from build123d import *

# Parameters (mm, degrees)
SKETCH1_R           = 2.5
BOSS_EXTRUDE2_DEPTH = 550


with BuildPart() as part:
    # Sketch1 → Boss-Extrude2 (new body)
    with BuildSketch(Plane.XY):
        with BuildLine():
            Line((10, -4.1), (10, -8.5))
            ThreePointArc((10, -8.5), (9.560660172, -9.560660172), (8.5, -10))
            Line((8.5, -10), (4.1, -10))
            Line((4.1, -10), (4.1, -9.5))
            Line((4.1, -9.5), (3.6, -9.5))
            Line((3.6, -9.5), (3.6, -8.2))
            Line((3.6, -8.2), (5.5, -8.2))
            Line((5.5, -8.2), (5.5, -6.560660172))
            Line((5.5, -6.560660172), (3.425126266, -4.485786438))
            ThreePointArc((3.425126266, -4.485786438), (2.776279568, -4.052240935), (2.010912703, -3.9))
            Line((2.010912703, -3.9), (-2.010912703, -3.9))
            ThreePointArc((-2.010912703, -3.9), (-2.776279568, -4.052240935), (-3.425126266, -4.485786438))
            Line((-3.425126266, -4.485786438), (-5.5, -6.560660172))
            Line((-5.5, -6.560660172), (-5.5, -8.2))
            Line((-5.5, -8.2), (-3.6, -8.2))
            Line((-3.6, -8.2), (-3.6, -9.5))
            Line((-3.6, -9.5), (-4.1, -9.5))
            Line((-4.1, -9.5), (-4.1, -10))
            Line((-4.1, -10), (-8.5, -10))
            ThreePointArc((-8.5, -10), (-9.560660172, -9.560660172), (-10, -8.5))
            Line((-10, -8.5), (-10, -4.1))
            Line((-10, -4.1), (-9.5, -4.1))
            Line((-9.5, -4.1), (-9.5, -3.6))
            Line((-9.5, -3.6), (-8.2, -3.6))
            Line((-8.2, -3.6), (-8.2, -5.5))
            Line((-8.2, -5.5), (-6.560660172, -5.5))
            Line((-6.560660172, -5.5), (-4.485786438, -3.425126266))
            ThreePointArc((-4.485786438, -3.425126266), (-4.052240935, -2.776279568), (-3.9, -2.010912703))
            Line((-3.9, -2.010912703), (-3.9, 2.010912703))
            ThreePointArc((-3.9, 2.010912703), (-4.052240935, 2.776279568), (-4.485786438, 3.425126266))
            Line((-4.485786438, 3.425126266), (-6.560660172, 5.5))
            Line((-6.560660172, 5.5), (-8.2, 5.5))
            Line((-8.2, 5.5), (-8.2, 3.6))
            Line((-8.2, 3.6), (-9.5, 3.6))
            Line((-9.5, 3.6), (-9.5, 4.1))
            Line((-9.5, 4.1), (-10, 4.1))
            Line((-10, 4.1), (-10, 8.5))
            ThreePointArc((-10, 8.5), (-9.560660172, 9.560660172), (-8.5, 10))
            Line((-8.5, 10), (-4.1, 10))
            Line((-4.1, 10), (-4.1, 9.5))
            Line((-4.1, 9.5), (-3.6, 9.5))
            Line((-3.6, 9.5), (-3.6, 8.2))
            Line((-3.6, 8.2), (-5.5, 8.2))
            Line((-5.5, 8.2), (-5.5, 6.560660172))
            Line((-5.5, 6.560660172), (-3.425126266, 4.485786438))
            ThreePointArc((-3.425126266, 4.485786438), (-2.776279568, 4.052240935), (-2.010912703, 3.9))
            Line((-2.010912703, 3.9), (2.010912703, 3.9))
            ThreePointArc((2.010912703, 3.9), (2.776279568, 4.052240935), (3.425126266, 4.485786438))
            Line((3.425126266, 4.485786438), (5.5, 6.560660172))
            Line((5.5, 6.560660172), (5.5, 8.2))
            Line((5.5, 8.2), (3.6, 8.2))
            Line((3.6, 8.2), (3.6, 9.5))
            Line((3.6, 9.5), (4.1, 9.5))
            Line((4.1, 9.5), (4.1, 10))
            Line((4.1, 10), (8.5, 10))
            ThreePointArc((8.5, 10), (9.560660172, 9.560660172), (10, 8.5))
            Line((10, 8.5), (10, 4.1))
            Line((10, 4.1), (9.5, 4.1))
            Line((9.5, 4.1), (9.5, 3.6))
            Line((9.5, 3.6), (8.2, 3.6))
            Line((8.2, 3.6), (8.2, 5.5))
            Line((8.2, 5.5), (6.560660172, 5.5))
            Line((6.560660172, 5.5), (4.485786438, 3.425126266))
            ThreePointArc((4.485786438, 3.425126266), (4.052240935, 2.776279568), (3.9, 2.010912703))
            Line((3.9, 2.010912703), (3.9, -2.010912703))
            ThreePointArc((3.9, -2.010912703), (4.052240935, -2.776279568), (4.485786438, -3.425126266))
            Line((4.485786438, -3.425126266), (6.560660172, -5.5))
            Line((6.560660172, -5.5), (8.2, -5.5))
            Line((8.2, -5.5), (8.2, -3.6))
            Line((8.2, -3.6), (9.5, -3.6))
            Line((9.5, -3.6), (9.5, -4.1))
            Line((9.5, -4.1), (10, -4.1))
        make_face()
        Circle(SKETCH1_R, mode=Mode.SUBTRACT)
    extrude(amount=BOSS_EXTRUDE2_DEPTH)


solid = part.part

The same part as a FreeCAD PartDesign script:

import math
import FreeCAD as App
import Part
import Sketcher
from FreeCAD import Vector
Q = App.Units.Quantity

doc = App.newDocument("Part")
body = doc.addObject("PartDesign::Body", "Body")

# Sketch on XY plane
sketch1 = body.newObject("Sketcher::SketchObject", "Sketch")
sketch1.AttachmentSupport = (doc.getObject("XY_Plane"), [""])
sketch1.MapMode = "FlatFace"
sketch1.addGeometry(Part.LineSegment(Vector(10, -8.5, 0), Vector(10, -4.1, 0)), False)
sketch1.addGeometry(Part.LineSegment(Vector(10, -4.1, 0), Vector(9.5, -4.1, 0)), False)
sketch1.addGeometry(Part.LineSegment(Vector(9.5, -4.1, 0), Vector(9.5, -3.6, 0)), False)
sketch1.addGeometry(Part.LineSegment(Vector(9.5, -3.6, 0), Vector(8.2, -3.6, 0)), False)
sketch1.addGeometry(Part.LineSegment(Vector(8.2, -3.6, 0), Vector(8.2, -5.5, 0)), False)
sketch1.addGeometry(Part.LineSegment(Vector(8.2, -5.5, 0), Vector(6.56, -5.5, 0)), False)
sketch1.addGeometry(Part.LineSegment(Vector(6.56, -5.5, 0), Vector(4.49, -3.43, 0)), False)
sketch1.addGeometry(Part.ArcOfCircle(Part.Circle(Vector(5.9, -2.01, 0), Vector(0, 0, 1), 2), math.radians(180), math.radians(225)), False)
sketch1.addGeometry(Part.LineSegment(Vector(3.9, -2.01, 0), Vector(3.9, 2.01, 0)), False)
sketch1.addGeometry(Part.ArcOfCircle(Part.Circle(Vector(5.9, 2.01, 0), Vector(0, 0, 1), 2), math.radians(135), math.radians(180)), False)
sketch1.addGeometry(Part.LineSegment(Vector(4.49, 3.43, 0), Vector(6.56, 5.5, 0)), False)
sketch1.addGeometry(Part.LineSegment(Vector(6.56, 5.5, 0), Vector(8.2, 5.5, 0)), False)
sketch1.addGeometry(Part.LineSegment(Vector(8.2, 5.5, 0), Vector(8.2, 3.6, 0)), False)
sketch1.addGeometry(Part.LineSegment(Vector(8.2, 3.6, 0), Vector(9.5, 3.6, 0)), False)
sketch1.addGeometry(Part.LineSegment(Vector(9.5, 3.6, 0), Vector(9.5, 4.1, 0)), False)
sketch1.addGeometry(Part.LineSegment(Vector(9.5, 4.1, 0), Vector(10, 4.1, 0)), False)
sketch1.addGeometry(Part.LineSegment(Vector(10, 4.1, 0), Vector(10, 8.5, 0)), False)
sketch1.addGeometry(Part.ArcOfCircle(Part.Circle(Vector(8.5, 8.5, 0), Vector(0, 0, 1), 1.5), math.radians(0), math.radians(90)), False)
sketch1.addGeometry(Part.LineSegment(Vector(8.5, 10, 0), Vector(4.1, 10, 0)), False)
sketch1.addGeometry(Part.LineSegment(Vector(4.1, 10, 0), Vector(4.1, 9.5, 0)), False)
sketch1.addGeometry(Part.LineSegment(Vector(4.1, 9.5, 0), Vector(3.6, 9.5, 0)), False)
sketch1.addGeometry(Part.LineSegment(Vector(3.6, 9.5, 0), Vector(3.6, 8.2, 0)), False)
sketch1.addGeometry(Part.LineSegment(Vector(3.6, 8.2, 0), Vector(5.5, 8.2, 0)), False)
sketch1.addGeometry(Part.LineSegment(Vector(5.5, 8.2, 0), Vector(5.5, 6.56, 0)), False)
sketch1.addGeometry(Part.LineSegment(Vector(5.5, 6.56, 0), Vector(3.43, 4.49, 0)), False)
sketch1.addGeometry(Part.ArcOfCircle(Part.Circle(Vector(2.01, 5.9, 0), Vector(0, 0, 1), 2), math.radians(-90), math.radians(-45)), False)
sketch1.addGeometry(Part.LineSegment(Vector(2.01, 3.9, 0), Vector(-2.01, 3.9, 0)), False)
sketch1.addGeometry(Part.ArcOfCircle(Part.Circle(Vector(-2.01, 5.9, 0), Vector(0, 0, 1), 2), math.radians(-135), math.radians(-90)), False)
sketch1.addGeometry(Part.LineSegment(Vector(-3.43, 4.49, 0), Vector(-5.5, 6.56, 0)), False)
sketch1.addGeometry(Part.LineSegment(Vector(-5.5, 6.56, 0), Vector(-5.5, 8.2, 0)), False)
sketch1.addGeometry(Part.LineSegment(Vector(-5.5, 8.2, 0), Vector(-3.6, 8.2, 0)), False)
sketch1.addGeometry(Part.LineSegment(Vector(-3.6, 8.2, 0), Vector(-3.6, 9.5, 0)), False)
sketch1.addGeometry(Part.LineSegment(Vector(-3.6, 9.5, 0), Vector(-4.1, 9.5, 0)), False)
sketch1.addGeometry(Part.LineSegment(Vector(-4.1, 9.5, 0), Vector(-4.1, 10, 0)), False)
sketch1.addGeometry(Part.LineSegment(Vector(-4.1, 10, 0), Vector(-8.5, 10, 0)), False)
sketch1.addGeometry(Part.ArcOfCircle(Part.Circle(Vector(-8.5, 8.5, 0), Vector(0, 0, 1), 1.5), math.radians(90), math.radians(180)), False)
sketch1.addGeometry(Part.LineSegment(Vector(-10, 8.5, 0), Vector(-10, 4.1, 0)), False)
sketch1.addGeometry(Part.LineSegment(Vector(-10, 4.1, 0), Vector(-9.5, 4.1, 0)), False)
sketch1.addGeometry(Part.LineSegment(Vector(-9.5, 4.1, 0), Vector(-9.5, 3.6, 0)), False)
sketch1.addGeometry(Part.LineSegment(Vector(-9.5, 3.6, 0), Vector(-8.2, 3.6, 0)), False)
sketch1.addGeometry(Part.LineSegment(Vector(-8.2, 3.6, 0), Vector(-8.2, 5.5, 0)), False)
sketch1.addGeometry(Part.LineSegment(Vector(-8.2, 5.5, 0), Vector(-6.56, 5.5, 0)), False)
sketch1.addGeometry(Part.LineSegment(Vector(-6.56, 5.5, 0), Vector(-4.49, 3.43, 0)), False)
sketch1.addGeometry(Part.ArcOfCircle(Part.Circle(Vector(-5.9, 2.01, 0), Vector(0, 0, 1), 2), math.radians(0), math.radians(45)), False)
sketch1.addGeometry(Part.LineSegment(Vector(-3.9, 2.01, 0), Vector(-3.9, -2.01, 0)), False)
sketch1.addGeometry(Part.ArcOfCircle(Part.Circle(Vector(-5.9, -2.01, 0), Vector(0, 0, 1), 2), math.radians(-45), math.radians(0)), False)
sketch1.addGeometry(Part.LineSegment(Vector(-4.49, -3.43, 0), Vector(-6.56, -5.5, 0)), False)
sketch1.addGeometry(Part.LineSegment(Vector(-6.56, -5.5, 0), Vector(-8.2, -5.5, 0)), False)
sketch1.addGeometry(Part.LineSegment(Vector(-8.2, -5.5, 0), Vector(-8.2, -3.6, 0)), False)
sketch1.addGeometry(Part.LineSegment(Vector(-8.2, -3.6, 0), Vector(-9.5, -3.6, 0)), False)
sketch1.addGeometry(Part.LineSegment(Vector(-9.5, -3.6, 0), Vector(-9.5, -4.1, 0)), False)
sketch1.addGeometry(Part.LineSegment(Vector(-9.5, -4.1, 0), Vector(-10, -4.1, 0)), False)
sketch1.addGeometry(Part.LineSegment(Vector(-10, -4.1, 0), Vector(-10, -8.5, 0)), False)
sketch1.addGeometry(Part.ArcOfCircle(Part.Circle(Vector(-8.5, -8.5, 0), Vector(0, 0, 1), 1.5), math.radians(180), math.radians(270)), False)
sketch1.addGeometry(Part.LineSegment(Vector(-8.5, -10, 0), Vector(-4.1, -10, 0)), False)
sketch1.addGeometry(Part.LineSegment(Vector(-4.1, -10, 0), Vector(-4.1, -9.5, 0)), False)
sketch1.addGeometry(Part.LineSegment(Vector(-4.1, -9.5, 0), Vector(-3.6, -9.5, 0)), False)
sketch1.addGeometry(Part.LineSegment(Vector(-3.6, -9.5, 0), Vector(-3.6, -8.2, 0)), False)
sketch1.addGeometry(Part.LineSegment(Vector(-3.6, -8.2, 0), Vector(-5.5, -8.2, 0)), False)
sketch1.addGeometry(Part.LineSegment(Vector(-5.5, -8.2, 0), Vector(-5.5, -6.56, 0)), False)
sketch1.addGeometry(Part.LineSegment(Vector(-5.5, -6.56, 0), Vector(-3.43, -4.49, 0)), False)
sketch1.addGeometry(Part.ArcOfCircle(Part.Circle(Vector(-2.01, -5.9, 0), Vector(0, 0, 1), 2), math.radians(90), math.radians(135)), False)
sketch1.addGeometry(Part.LineSegment(Vector(-2.01, -3.9, 0), Vector(2.01, -3.9, 0)), False)
sketch1.addGeometry(Part.ArcOfCircle(Part.Circle(Vector(2.01, -5.9, 0), Vector(0, 0, 1), 2), math.radians(45), math.radians(90)), False)
sketch1.addGeometry(Part.LineSegment(Vector(3.43, -4.49, 0), Vector(5.5, -6.56, 0)), False)
sketch1.addGeometry(Part.LineSegment(Vector(5.5, -6.56, 0), Vector(5.5, -8.2, 0)), False)
sketch1.addGeometry(Part.LineSegment(Vector(5.5, -8.2, 0), Vector(3.6, -8.2, 0)), False)
sketch1.addGeometry(Part.LineSegment(Vector(3.6, -8.2, 0), Vector(3.6, -9.5, 0)), False)
sketch1.addGeometry(Part.LineSegment(Vector(3.6, -9.5, 0), Vector(4.1, -9.5, 0)), False)
sketch1.addGeometry(Part.LineSegment(Vector(4.1, -9.5, 0), Vector(4.1, -10, 0)), False)
sketch1.addGeometry(Part.LineSegment(Vector(4.1, -10, 0), Vector(8.5, -10, 0)), False)
sketch1.addGeometry(Part.ArcOfCircle(Part.Circle(Vector(8.5, -8.5, 0), Vector(0, 0, 1), 1.5), math.radians(-90), math.radians(0)), False)
sketch1.addGeometry(Part.Circle(Vector(0, 0, 0), Vector(0, 0, 1), 2.5), False)
sketch1.addConstraint(Sketcher.Constraint("Coincident", 0, 2, 1, 1))
sketch1.addConstraint(Sketcher.Constraint("Coincident", 1, 2, 2, 1))
sketch1.addConstraint(Sketcher.Constraint("Coincident", 2, 2, 3, 1))
sketch1.addConstraint(Sketcher.Constraint("Coincident", 3, 2, 4, 1))
sketch1.addConstraint(Sketcher.Constraint("Coincident", 4, 2, 5, 1))
sketch1.addConstraint(Sketcher.Constraint("Coincident", 5, 2, 6, 1))
sketch1.addConstraint(Sketcher.Constraint("Tangent", 6, 2, 7, 2))
sketch1.addConstraint(Sketcher.Constraint("Tangent", 7, 1, 8, 1))
sketch1.addConstraint(Sketcher.Constraint("Tangent", 8, 2, 9, 2))
sketch1.addConstraint(Sketcher.Constraint("Tangent", 9, 1, 10, 1))
sketch1.addConstraint(Sketcher.Constraint("Coincident", 10, 2, 11, 1))
sketch1.addConstraint(Sketcher.Constraint("Coincident", 11, 2, 12, 1))
sketch1.addConstraint(Sketcher.Constraint("Coincident", 12, 2, 13, 1))
sketch1.addConstraint(Sketcher.Constraint("Coincident", 13, 2, 14, 1))
sketch1.addConstraint(Sketcher.Constraint("Coincident", 14, 2, 15, 1))
sketch1.addConstraint(Sketcher.Constraint("Coincident", 15, 2, 16, 1))
sketch1.addConstraint(Sketcher.Constraint("Tangent", 16, 2, 17, 1))
sketch1.addConstraint(Sketcher.Constraint("Tangent", 17, 2, 18, 1))
sketch1.addConstraint(Sketcher.Constraint("Coincident", 18, 2, 19, 1))
sketch1.addConstraint(Sketcher.Constraint("Coincident", 19, 2, 20, 1))
sketch1.addConstraint(Sketcher.Constraint("Coincident", 20, 2, 21, 1))
sketch1.addConstraint(Sketcher.Constraint("Coincident", 21, 2, 22, 1))
sketch1.addConstraint(Sketcher.Constraint("Coincident", 22, 2, 23, 1))
sketch1.addConstraint(Sketcher.Constraint("Coincident", 23, 2, 24, 1))
sketch1.addConstraint(Sketcher.Constraint("Tangent", 24, 2, 25, 2))
sketch1.addConstraint(Sketcher.Constraint("Tangent", 25, 1, 26, 1))
sketch1.addConstraint(Sketcher.Constraint("Tangent", 26, 2, 27, 2))
sketch1.addConstraint(Sketcher.Constraint("Tangent", 27, 1, 28, 1))
sketch1.addConstraint(Sketcher.Constraint("Coincident", 28, 2, 29, 1))
sketch1.addConstraint(Sketcher.Constraint("Coincident", 29, 2, 30, 1))
sketch1.addConstraint(Sketcher.Constraint("Coincident", 30, 2, 31, 1))
sketch1.addConstraint(Sketcher.Constraint("Coincident", 31, 2, 32, 1))
sketch1.addConstraint(Sketcher.Constraint("Coincident", 32, 2, 33, 1))
sketch1.addConstraint(Sketcher.Constraint("Coincident", 33, 2, 34, 1))
sketch1.addConstraint(Sketcher.Constraint("Tangent", 34, 2, 35, 1))
sketch1.addConstraint(Sketcher.Constraint("Tangent", 35, 2, 36, 1))
sketch1.addConstraint(Sketcher.Constraint("Coincident", 36, 2, 37, 1))
sketch1.addConstraint(Sketcher.Constraint("Coincident", 37, 2, 38, 1))
sketch1.addConstraint(Sketcher.Constraint("Coincident", 38, 2, 39, 1))
sketch1.addConstraint(Sketcher.Constraint("Coincident", 39, 2, 40, 1))
sketch1.addConstraint(Sketcher.Constraint("Coincident", 40, 2, 41, 1))
sketch1.addConstraint(Sketcher.Constraint("Coincident", 41, 2, 42, 1))
sketch1.addConstraint(Sketcher.Constraint("Tangent", 42, 2, 43, 2))
sketch1.addConstraint(Sketcher.Constraint("Tangent", 43, 1, 44, 1))
sketch1.addConstraint(Sketcher.Constraint("Tangent", 44, 2, 45, 2))
sketch1.addConstraint(Sketcher.Constraint("Tangent", 45, 1, 46, 1))
sketch1.addConstraint(Sketcher.Constraint("Coincident", 46, 2, 47, 1))
sketch1.addConstraint(Sketcher.Constraint("Coincident", 47, 2, 48, 1))
sketch1.addConstraint(Sketcher.Constraint("Coincident", 48, 2, 49, 1))
sketch1.addConstraint(Sketcher.Constraint("Coincident", 49, 2, 50, 1))
sketch1.addConstraint(Sketcher.Constraint("Coincident", 50, 2, 51, 1))
sketch1.addConstraint(Sketcher.Constraint("Coincident", 51, 2, 52, 1))
sketch1.addConstraint(Sketcher.Constraint("Tangent", 52, 2, 53, 1))
sketch1.addConstraint(Sketcher.Constraint("Tangent", 53, 2, 54, 1))
sketch1.addConstraint(Sketcher.Constraint("Coincident", 54, 2, 55, 1))
sketch1.addConstraint(Sketcher.Constraint("Coincident", 55, 2, 56, 1))
sketch1.addConstraint(Sketcher.Constraint("Coincident", 56, 2, 57, 1))
sketch1.addConstraint(Sketcher.Constraint("Coincident", 57, 2, 58, 1))
sketch1.addConstraint(Sketcher.Constraint("Coincident", 58, 2, 59, 1))
sketch1.addConstraint(Sketcher.Constraint("Coincident", 59, 2, 60, 1))
sketch1.addConstraint(Sketcher.Constraint("Tangent", 60, 2, 61, 2))
sketch1.addConstraint(Sketcher.Constraint("Tangent", 61, 1, 62, 1))
sketch1.addConstraint(Sketcher.Constraint("Tangent", 62, 2, 63, 2))
sketch1.addConstraint(Sketcher.Constraint("Tangent", 63, 1, 64, 1))
sketch1.addConstraint(Sketcher.Constraint("Coincident", 64, 2, 65, 1))
sketch1.addConstraint(Sketcher.Constraint("Coincident", 65, 2, 66, 1))
sketch1.addConstraint(Sketcher.Constraint("Coincident", 66, 2, 67, 1))
sketch1.addConstraint(Sketcher.Constraint("Coincident", 67, 2, 68, 1))
sketch1.addConstraint(Sketcher.Constraint("Coincident", 68, 2, 69, 1))
sketch1.addConstraint(Sketcher.Constraint("Coincident", 69, 2, 70, 1))
sketch1.addConstraint(Sketcher.Constraint("Tangent", 70, 2, 71, 1))
sketch1.addConstraint(Sketcher.Constraint("Tangent", 71, 2, 0, 1))
sketch1.addConstraint(Sketcher.Constraint("Vertical", 0))
sketch1.addConstraint(Sketcher.Constraint("Horizontal", 1))
sketch1.addConstraint(Sketcher.Constraint("Vertical", 2))
sketch1.addConstraint(Sketcher.Constraint("Horizontal", 3))
sketch1.addConstraint(Sketcher.Constraint("Vertical", 4))
sketch1.addConstraint(Sketcher.Constraint("Horizontal", 5))
sketch1.addConstraint(Sketcher.Constraint("Vertical", 8))
sketch1.addConstraint(Sketcher.Constraint("Horizontal", 11))
sketch1.addConstraint(Sketcher.Constraint("Vertical", 12))
sketch1.addConstraint(Sketcher.Constraint("Horizontal", 13))
sketch1.addConstraint(Sketcher.Constraint("Vertical", 14))
sketch1.addConstraint(Sketcher.Constraint("Horizontal", 15))
sketch1.addConstraint(Sketcher.Constraint("Vertical", 16))
sketch1.addConstraint(Sketcher.Constraint("Horizontal", 18))
sketch1.addConstraint(Sketcher.Constraint("Vertical", 19))
sketch1.addConstraint(Sketcher.Constraint("Horizontal", 20))
sketch1.addConstraint(Sketcher.Constraint("Vertical", 21))
sketch1.addConstraint(Sketcher.Constraint("Horizontal", 22))
sketch1.addConstraint(Sketcher.Constraint("Vertical", 23))
sketch1.addConstraint(Sketcher.Constraint("Horizontal", 26))
sketch1.addConstraint(Sketcher.Constraint("Vertical", 29))
sketch1.addConstraint(Sketcher.Constraint("Horizontal", 30))
sketch1.addConstraint(Sketcher.Constraint("Vertical", 31))
sketch1.addConstraint(Sketcher.Constraint("Horizontal", 32))
sketch1.addConstraint(Sketcher.Constraint("Vertical", 33))
sketch1.addConstraint(Sketcher.Constraint("Horizontal", 34))
sketch1.addConstraint(Sketcher.Constraint("Vertical", 36))
sketch1.addConstraint(Sketcher.Constraint("Horizontal", 37))
sketch1.addConstraint(Sketcher.Constraint("Vertical", 38))
sketch1.addConstraint(Sketcher.Constraint("Horizontal", 39))
sketch1.addConstraint(Sketcher.Constraint("Vertical", 40))
sketch1.addConstraint(Sketcher.Constraint("Horizontal", 41))
sketch1.addConstraint(Sketcher.Constraint("Vertical", 44))
sketch1.addConstraint(Sketcher.Constraint("Horizontal", 47))
sketch1.addConstraint(Sketcher.Constraint("Vertical", 48))
sketch1.addConstraint(Sketcher.Constraint("Horizontal", 49))
sketch1.addConstraint(Sketcher.Constraint("Vertical", 50))
sketch1.addConstraint(Sketcher.Constraint("Horizontal", 51))
sketch1.addConstraint(Sketcher.Constraint("Vertical", 52))
sketch1.addConstraint(Sketcher.Constraint("Horizontal", 54))
sketch1.addConstraint(Sketcher.Constraint("Vertical", 55))
sketch1.addConstraint(Sketcher.Constraint("Horizontal", 56))
sketch1.addConstraint(Sketcher.Constraint("Vertical", 57))
sketch1.addConstraint(Sketcher.Constraint("Horizontal", 58))
sketch1.addConstraint(Sketcher.Constraint("Vertical", 59))
sketch1.addConstraint(Sketcher.Constraint("Horizontal", 62))
sketch1.addConstraint(Sketcher.Constraint("Vertical", 65))
sketch1.addConstraint(Sketcher.Constraint("Horizontal", 66))
sketch1.addConstraint(Sketcher.Constraint("Vertical", 67))
sketch1.addConstraint(Sketcher.Constraint("Horizontal", 68))
sketch1.addConstraint(Sketcher.Constraint("Vertical", 69))
sketch1.addConstraint(Sketcher.Constraint("Horizontal", 70))
sketch1.addConstraint(Sketcher.Constraint("Coincident", 72, 3, -1, 1))
sketch1.addConstraint(Sketcher.Constraint("Equal", 7, 9))
sketch1.addConstraint(Sketcher.Constraint("Equal", 9, 25))
sketch1.addConstraint(Sketcher.Constraint("Equal", 25, 27))
sketch1.addConstraint(Sketcher.Constraint("Equal", 17, 35))
sketch1.addConstraint(Sketcher.Constraint("Equal", 27, 43))
sketch1.addConstraint(Sketcher.Constraint("Equal", 43, 45))
sketch1.addConstraint(Sketcher.Constraint("Equal", 35, 53))
sketch1.addConstraint(Sketcher.Constraint("Equal", 45, 61))
sketch1.addConstraint(Sketcher.Constraint("Equal", 61, 63))
sketch1.addConstraint(Sketcher.Constraint("Equal", 53, 71))
sketch1.addConstraint(Sketcher.Constraint("Symmetric", 7, 3, 43, 3, -1, 1))
sketch1.addConstraint(Sketcher.Constraint("Symmetric", 17, 3, 53, 3, -1, 1))
sketch1.addConstraint(Sketcher.Constraint("Symmetric", 25, 3, 61, 3, -1, 1))
sketch1.addConstraint(Sketcher.Constraint("Symmetric", 35, 3, 71, 3, -1, 1))
sketch1.addConstraint(Sketcher.Constraint("Symmetric", 1, 2, 37, 2, -1, 1))
sketch1.addConstraint(Sketcher.Constraint("Symmetric", 3, 2, 39, 2, -1, 1))
sketch1.addConstraint(Sketcher.Constraint("Symmetric", 5, 2, 41, 2, -1, 1))
sketch1.addConstraint(Sketcher.Constraint("Symmetric", 9, 1, 45, 1, -1, 1))
sketch1.addConstraint(Sketcher.Constraint("Symmetric", 11, 2, 47, 2, -1, 1))
sketch1.addConstraint(Sketcher.Constraint("Symmetric", 13, 2, 49, 2, -1, 1))
sketch1.addConstraint(Sketcher.Constraint("Symmetric", 19, 2, 55, 2, -1, 1))
sketch1.addConstraint(Sketcher.Constraint("Symmetric", 21, 2, 57, 2, -1, 1))
sketch1.addConstraint(Sketcher.Constraint("Symmetric", 23, 2, 59, 2, -1, 1))
sketch1.addConstraint(Sketcher.Constraint("Symmetric", 27, 1, 63, 1, -1, 1))
sketch1.addConstraint(Sketcher.Constraint("Symmetric", 29, 2, 65, 2, -1, 1))
sketch1.addConstraint(Sketcher.Constraint("Symmetric", 31, 2, 67, 2, -1, 1))
sketch1.addConstraint(Sketcher.Constraint("Symmetric", 17, 3, 35, 3, -2))
sketch1.addConstraint(Sketcher.Constraint("Symmetric", 24, 2, 27, 1, -2))
sketch1.addConstraint(Sketcher.Constraint("Symmetric", 22, 2, 29, 2, -2))
sketch1.addConstraint(Sketcher.Constraint("Symmetric", 20, 2, 31, 2, -2))
sketch1.addConstraint(Sketcher.Constraint("Symmetric", 14, 2, 37, 2, -2))
sketch1.addConstraint(Sketcher.Constraint("Symmetric", 12, 2, 39, 2, -2))
sketch1.addConstraint(Sketcher.Constraint("Symmetric", 10, 2, 41, 2, -2))
sketch1.addConstraint(Sketcher.Constraint("Perpendicular", 6, 10))
sketch1.addConstraint(Sketcher.Constraint("Parallel", 10, 24))
sketch1.addConstraint(Sketcher.Constraint("Perpendicular", 24, 28))
sketch1.addConstraint(Sketcher.Constraint("Horizontal", 1, 2, 50, 2))
sketch1.addConstraint(Sketcher.Constraint("Vertical", 33, 2, 54, 2))
sketch1.addConstraint(Sketcher.Constraint("Vertical", 19, 2, 68, 2))
sketch1.addConstraint(Sketcher.Constraint("Equal", 15, 20))
sketch1.addConstraint(Sketcher.Constraint("Equal", 70, 0))
sketch1.addConstraint(Sketcher.Constraint("Equal", 68, 2))
sketch1.addConstraint(Sketcher.Constraint("Equal", 66, 4))
sketch1.addConstraint(Sketcher.Constraint("Equal", 62, 8))
sketch1.addConstraint(Sketcher.Constraint("Equal", 14, 19))
sketch1.addConstraint(Sketcher.Constraint("Equal", 49, 21))
sketch1.addConstraint(Sketcher.Constraint("Equal", 47, 23))
sketch1.addConstraint(Sketcher.Constraint("Equal", 10, 24))
sketch1.addConstraint(Sketcher.Constraint("Diameter", 72, Q("5 mm")))
sketch1.addConstraint(Sketcher.Constraint("Radius", 7, Q("2 mm")))
sketch1.addConstraint(Sketcher.Constraint("Radius", 17, Q("1.5 mm")))
sketch1.addConstraint(Sketcher.Constraint("DistanceX", 1, 2, 1, 1, Q("0.5 mm")))
sketch1.addConstraint(Sketcher.Constraint("DistanceX", 3, 2, 3, 1, Q("1.3 mm")))
sketch1.addConstraint(Sketcher.Constraint("DistanceX", 18, 2, 18, 1, Q("4.4 mm")))
sketch1.addConstraint(Sketcher.Constraint("DistanceX", 22, 1, 22, 2, Q("1.9 mm")))
sketch1.addConstraint(Sketcher.Constraint("DistanceX", -1, 1, 0, 2, Q("10 mm")))
sketch1.addConstraint(Sketcher.Constraint("DistanceX", -1, 1, 7, 3, Q("5.9 mm")))
sketch1.addConstraint(Sketcher.Constraint("DistanceX", 5, 2, 5, 1, Q("1.63934 mm")))
pad1 = body.newObject("PartDesign::Pad", "Pad")
pad1.Profile = sketch1
pad1.Length = 550

doc.recompute()
